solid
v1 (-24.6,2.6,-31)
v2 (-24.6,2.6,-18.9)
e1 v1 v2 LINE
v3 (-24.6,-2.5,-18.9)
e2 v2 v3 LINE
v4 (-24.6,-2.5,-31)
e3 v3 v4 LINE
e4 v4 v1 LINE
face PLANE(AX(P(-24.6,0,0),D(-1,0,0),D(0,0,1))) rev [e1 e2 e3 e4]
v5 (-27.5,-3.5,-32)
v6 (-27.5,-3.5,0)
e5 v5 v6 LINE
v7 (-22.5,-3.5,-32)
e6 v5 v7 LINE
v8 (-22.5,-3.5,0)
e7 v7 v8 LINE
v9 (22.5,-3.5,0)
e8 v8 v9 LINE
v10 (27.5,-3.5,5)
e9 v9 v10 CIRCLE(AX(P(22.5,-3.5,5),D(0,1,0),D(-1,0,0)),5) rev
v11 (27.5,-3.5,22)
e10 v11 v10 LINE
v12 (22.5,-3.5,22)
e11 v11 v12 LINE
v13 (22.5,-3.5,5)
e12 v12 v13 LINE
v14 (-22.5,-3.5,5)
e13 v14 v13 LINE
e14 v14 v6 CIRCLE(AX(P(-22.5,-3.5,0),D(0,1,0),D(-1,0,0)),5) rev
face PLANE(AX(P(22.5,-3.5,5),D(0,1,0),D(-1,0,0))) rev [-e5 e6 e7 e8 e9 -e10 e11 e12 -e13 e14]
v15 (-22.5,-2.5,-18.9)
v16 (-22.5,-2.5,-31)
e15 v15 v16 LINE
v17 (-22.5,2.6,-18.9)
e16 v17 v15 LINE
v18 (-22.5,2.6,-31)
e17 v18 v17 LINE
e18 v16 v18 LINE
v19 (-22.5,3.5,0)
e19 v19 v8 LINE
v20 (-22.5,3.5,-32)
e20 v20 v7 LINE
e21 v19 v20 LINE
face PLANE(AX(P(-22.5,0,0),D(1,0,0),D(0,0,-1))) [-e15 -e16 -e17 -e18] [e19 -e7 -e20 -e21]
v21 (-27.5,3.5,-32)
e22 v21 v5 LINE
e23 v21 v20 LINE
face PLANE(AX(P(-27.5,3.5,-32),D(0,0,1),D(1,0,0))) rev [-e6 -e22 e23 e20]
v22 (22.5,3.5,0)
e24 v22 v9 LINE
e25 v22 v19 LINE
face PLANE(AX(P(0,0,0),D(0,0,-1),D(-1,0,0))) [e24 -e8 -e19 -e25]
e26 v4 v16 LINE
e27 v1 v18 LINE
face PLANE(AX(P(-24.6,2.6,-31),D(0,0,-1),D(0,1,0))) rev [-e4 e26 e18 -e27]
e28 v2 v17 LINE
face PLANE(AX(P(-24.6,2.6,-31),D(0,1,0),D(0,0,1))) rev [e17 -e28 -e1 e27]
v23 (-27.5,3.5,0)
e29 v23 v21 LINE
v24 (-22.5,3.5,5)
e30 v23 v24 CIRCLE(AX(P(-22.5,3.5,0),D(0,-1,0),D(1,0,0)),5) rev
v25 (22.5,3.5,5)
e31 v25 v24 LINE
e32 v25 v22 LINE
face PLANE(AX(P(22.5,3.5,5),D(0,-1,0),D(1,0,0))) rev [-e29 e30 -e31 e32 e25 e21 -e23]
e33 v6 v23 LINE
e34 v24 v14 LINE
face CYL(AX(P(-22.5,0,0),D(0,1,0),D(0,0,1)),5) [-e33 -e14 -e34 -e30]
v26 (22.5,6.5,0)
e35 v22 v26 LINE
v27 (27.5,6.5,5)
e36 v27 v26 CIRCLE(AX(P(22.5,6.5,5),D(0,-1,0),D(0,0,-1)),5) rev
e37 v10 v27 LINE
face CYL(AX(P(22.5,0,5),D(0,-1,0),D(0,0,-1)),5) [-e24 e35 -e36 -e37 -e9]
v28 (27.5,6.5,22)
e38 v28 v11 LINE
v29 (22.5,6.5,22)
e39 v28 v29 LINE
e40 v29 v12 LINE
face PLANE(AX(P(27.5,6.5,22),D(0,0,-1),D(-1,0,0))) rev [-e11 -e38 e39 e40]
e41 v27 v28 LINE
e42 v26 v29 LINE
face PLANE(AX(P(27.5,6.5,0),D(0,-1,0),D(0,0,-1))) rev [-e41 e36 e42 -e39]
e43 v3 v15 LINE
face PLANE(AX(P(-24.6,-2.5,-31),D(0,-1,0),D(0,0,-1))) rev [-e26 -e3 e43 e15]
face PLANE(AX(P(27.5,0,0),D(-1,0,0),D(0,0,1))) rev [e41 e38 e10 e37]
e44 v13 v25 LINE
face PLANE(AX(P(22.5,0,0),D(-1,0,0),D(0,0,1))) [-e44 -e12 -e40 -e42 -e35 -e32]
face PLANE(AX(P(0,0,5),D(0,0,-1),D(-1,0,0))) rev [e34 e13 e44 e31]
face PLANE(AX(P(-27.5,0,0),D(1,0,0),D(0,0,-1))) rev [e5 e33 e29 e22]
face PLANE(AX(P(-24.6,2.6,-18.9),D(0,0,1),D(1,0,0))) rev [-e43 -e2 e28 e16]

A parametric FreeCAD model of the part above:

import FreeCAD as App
import Part
import Sketcher
Q = App.Units.Quantity


def edges_at(feature, points):
    """Names of the edges that pass closest to the given points."""
    edges = feature.Shape.Edges
    near = lambda p: min(range(len(edges)), key=lambda i: edges[i].distToShape(Part.Vertex(*p))[0])
    return sorted({f"Edge{near(p) + 1}" for p in points})


def add_polygon(sketch, points):
    """Adds a closed chain of lines whose ends are joined by coincident constraints."""
    first, n = sketch.GeometryCount, len(points)
    for a, b in zip(points, points[1:] + points[:1]):
        sketch.addGeometry(Part.LineSegment(App.Vector(*a, 0), App.Vector(*b, 0)), False)
    for i in range(n):
        sketch.addConstraint(Sketcher.Constraint("Coincident", first + i, 2, first + (i + 1) % n, 1))

doc = App.newDocument("Part")
body = doc.addObject("PartDesign::Body", "Body")

sketch1 = body.newObject("Sketcher::SketchObject", "Sketch")
sketch1.AttachmentSupport = (doc.getObject("XY_Plane"), [""])
sketch1.MapMode = "FlatFace"
add_polygon(sketch1, [(-22, 4), (-22, -4), (22, -4), (22, 4)])
sketch1.addConstraint([
    Sketcher.Constraint("Vertical", 0),
    Sketcher.Constraint("Horizontal", 1),
    Sketcher.Constraint("Vertical", 2),
    Sketcher.Constraint("Horizontal", 3),
    Sketcher.Constraint("Symmetric", 0, 2, 2, 2, -1, 1),
    Sketcher.Constraint("DistanceX", 1, 1, 1, 2, Q("45 mm")),
    Sketcher.Constraint("DistanceY", 0, 2, 0, 1, Q("7 mm")),
])
pad1 = body.newObject("PartDesign::Pad", "Pad")
pad1.Profile = sketch1
pad1.Length = 5

sketch2 = body.newObject("Sketcher::SketchObject", "Sketch001")
sketch2.AttachmentSupport = (doc.getObject("YZ_Plane"), [""])
sketch2.MapMode = "FlatFace"
sketch2.AttachmentOffset = App.Placement(App.Vector(0, 0, -22.5), App.Rotation())
add_polygon(sketch2, [(4, -32), (-4, -32), (-4, 5), (4, 5)])
sketch2.addConstraint([
    Sketcher.Constraint("Horizontal", 0),
    Sketcher.Constraint("Vertical", 1),
    Sketcher.Constraint("Horizontal", 2),
    Sketcher.Constraint("Vertical", 3),
    Sketcher.Constraint("DistanceX", 0, 2, 0, 1, Q("7 mm")),
    Sketcher.Constraint("DistanceY", 1, 1, 1, 2, Q("37 mm")),
    Sketcher.Constraint("DistanceY", 0, 2, -1, 1, Q("32 mm")),
    Sketcher.Constraint("DistanceX", 0, 2, -1, 1, Q("3.5 mm")),
])
pad2 = body.newObject("PartDesign::Pad", "Pad001")
pad2.Profile = sketch2
pad2.Length = 5
pad2.Reversed = True
doc.recompute()

fillet = body.newObject("PartDesign::Fillet", "Fillet")
fillet.Base = (pad2, edges_at(pad2, [(-27.5, 0, 5)]))
fillet.Radius = 5

sketch3 = body.newObject("Sketcher::SketchObject", "Sketch002")
sketch3.AttachmentSupport = (doc.getObject("YZ_Plane"), [""])
sketch3.MapMode = "FlatFace"
sketch3.AttachmentOffset = App.Placement(App.Vector(0, 0, 22.5), App.Rotation())
add_polygon(sketch3, [(6, 22), (-4, 22), (-4, 0), (6, 0)])
sketch3.addConstraint([
    Sketcher.Constraint("Horizontal", 0),
    Sketcher.Constraint("Vertical", 1),
    Sketcher.Constraint("Horizontal", 2),
    Sketcher.Constraint("Vertical", 3),
    Sketcher.Constraint("PointOnObject", 1, 2, -1),
    Sketcher.Constraint("DistanceX", 0, 2, 0, 1, Q("10 mm")),
    Sketcher.Constraint("DistanceY", 1, 2, 1, 1, Q("22 mm")),
    Sketcher.Constraint("DistanceX", 0, 2, -1, 1, Q("3.5 mm")),
])
pad3 = body.newObject("PartDesign::Pad", "Pad002")
pad3.Profile = sketch3
pad3.Length = 5
doc.recompute()

fillet2 = body.newObject("PartDesign::Fillet", "Fillet001")
fillet2.Base = (pad3, edges_at(pad3, [(27.5, 1.5, 0)]))
fillet2.Radius = 5

sketch4 = body.newObject("Sketcher::SketchObject", "Sketch003")
sketch4.AttachmentSupport = (doc.getObject("YZ_Plane"), [""])
sketch4.MapMode = "FlatFace"
sketch4.AttachmentOffset = App.Placement(App.Vector(0, 0, -22.5), App.Rotation())
add_polygon(sketch4, [(3, -19), (-2, -19), (-2, -31), (3, -31)])
sketch4.addConstraint([
    Sketcher.Constraint("Horizontal", 0),
    Sketcher.Constraint("Vertical", 1),
    Sketcher.Constraint("Horizontal", 2),
    Sketcher.Constraint("Vertical", 3),
    Sketcher.Constraint("DistanceX", 0, 2, 0, 1, Q("5.1 mm")),
    Sketcher.Constraint("DistanceY", 1, 2, 1, 1, Q("12.1 mm")),
    Sketcher.Constraint("DistanceY", 1, 2, -1, 1, Q("31 mm")),
    Sketcher.Constraint("DistanceX", 0, 2, -1, 1, Q("2.5 mm")),
])
pocket1 = body.newObject("PartDesign::Pocket", "Pocket")
pocket1.Profile = sketch4
pocket1.Length = 2.1

doc.recompute()
